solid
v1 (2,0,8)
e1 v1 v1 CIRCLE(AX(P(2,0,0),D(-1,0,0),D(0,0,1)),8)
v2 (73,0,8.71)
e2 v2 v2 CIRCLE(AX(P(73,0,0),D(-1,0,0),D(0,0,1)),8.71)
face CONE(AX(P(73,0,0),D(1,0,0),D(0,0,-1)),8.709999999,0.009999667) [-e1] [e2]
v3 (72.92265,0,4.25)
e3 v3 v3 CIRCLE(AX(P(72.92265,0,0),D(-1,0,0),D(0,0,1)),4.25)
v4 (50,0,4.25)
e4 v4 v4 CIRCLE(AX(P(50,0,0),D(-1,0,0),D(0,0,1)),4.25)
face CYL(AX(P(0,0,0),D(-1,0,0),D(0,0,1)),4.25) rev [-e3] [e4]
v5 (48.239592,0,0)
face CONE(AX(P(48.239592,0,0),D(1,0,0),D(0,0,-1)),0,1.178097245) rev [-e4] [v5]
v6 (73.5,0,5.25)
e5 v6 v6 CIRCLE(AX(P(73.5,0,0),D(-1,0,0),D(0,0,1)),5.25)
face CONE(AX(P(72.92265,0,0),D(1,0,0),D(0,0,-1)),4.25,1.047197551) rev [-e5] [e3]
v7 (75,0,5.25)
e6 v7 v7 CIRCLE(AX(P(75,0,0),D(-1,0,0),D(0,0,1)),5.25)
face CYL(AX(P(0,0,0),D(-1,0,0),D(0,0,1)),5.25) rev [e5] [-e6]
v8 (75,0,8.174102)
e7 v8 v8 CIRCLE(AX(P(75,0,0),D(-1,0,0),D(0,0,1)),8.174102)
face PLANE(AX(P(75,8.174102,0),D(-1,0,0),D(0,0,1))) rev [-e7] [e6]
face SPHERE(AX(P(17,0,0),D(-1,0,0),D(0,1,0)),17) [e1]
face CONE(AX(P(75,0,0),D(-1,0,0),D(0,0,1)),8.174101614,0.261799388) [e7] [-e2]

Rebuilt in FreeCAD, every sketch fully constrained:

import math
import FreeCAD as App
import Part
import Sketcher

V = App.Vector
Q = App.Units.Quantity

doc = App.newDocument("Part")
body = doc.addObject("PartDesign::Body", "Body")

sketch1 = body.newObject("Sketcher::SketchObject", "Sketch")
sketch1.AttachmentSupport = (doc.getObject("XY_Plane"), [""])
sketch1.MapMode = "FlatFace"
sketch1.addGeometry([
    Part.LineSegment(V(73, 8.7, 0), V(2, 8, 0)),
    Part.ArcOfCircle(Part.Circle(V(17, 0, 0), V(0, 0, 1), 17), math.radians(152), math.radians(180)),
    Part.LineSegment(V(0, 0, 0), V(48.2, 0, 0)),
    Part.LineSegment(V(48.2, 0, 0), V(50, 4.2, 0)),
    Part.LineSegment(V(50, 4.2, 0), V(72.9, 4.2, 0)),
    Part.LineSegment(V(72.9, 4.2, 0), V(73.5, 5.2, 0)),
    Part.LineSegment(V(73.5, 5.2, 0), V(75, 5.2, 0)),
    Part.LineSegment(V(75, 5.2, 0), V(75, 8.2, 0)),
    Part.LineSegment(V(75, 8.2, 0), V(73, 8.7, 0)),
], False)
sketch1.addConstraint([
    Sketcher.Constraint("Coincident", 0, 2, 1, 1),
    Sketcher.Constraint("Coincident", 1, 2, 2, 1),
    Sketcher.Constraint("Coincident", 2, 2, 3, 1),
    Sketcher.Constraint("Coincident", 3, 2, 4, 1),
    Sketcher.Constraint("Coincident", 4, 2, 5, 1),
    Sketcher.Constraint("Coincident", 5, 2, 6, 1),
    Sketcher.Constraint("Coincident", 6, 2, 7, 1),
    Sketcher.Constraint("Coincident", 7, 2, 8, 1),
    Sketcher.Constraint("Coincident", 8, 2, 0, 1),
    Sketcher.Constraint("Horizontal", 2),
    Sketcher.Constraint("Horizontal", 4),
    Sketcher.Constraint("Horizontal", 6),
    Sketcher.Constraint("Vertical", 7),
    Sketcher.Constraint("Coincident", 1, 2, -1, 1),
    Sketcher.Constraint("PointOnObject", 1, 3, -1),
    Sketcher.Constraint("Radius", 1, 17.0),
    Sketcher.Constraint("Angle", 5, Q("60 deg")),
    Sketcher.Constraint("Angle", 8, Q("165 deg")),
    Sketcher.Constraint("DistanceX", 6, 1, 6, 2, 1.5),
    Sketcher.Constraint("DistanceX", -1, 1, 0, 2, 2.0),
    Sketcher.Constraint("DistanceX", -1, 1, 3, 2, 50.0),
    Sketcher.Constraint("DistanceX", -1, 1, 6, 2, 75.0),
    Sketcher.Constraint("DistanceX", -1, 1, 8, 2, 73.0),
    Sketcher.Constraint("Angle", 3, Q("67.5 deg")),
    Sketcher.Constraint("DistanceY", 4, 2, 5, 2, 1.0),
    Sketcher.Constraint("DistanceY", -1, 1, 3, 2, 4.25),
    Sketcher.Constraint("DistanceY", -1, 1, 8, 2, 8.71),
])
revolution = body.newObject("PartDesign::Revolution", "Revolution")
revolution.Profile = sketch1
revolution.ReferenceAxis = (sketch1, ["H_Axis"])
revolution.Angle = 360

doc.recompute()
